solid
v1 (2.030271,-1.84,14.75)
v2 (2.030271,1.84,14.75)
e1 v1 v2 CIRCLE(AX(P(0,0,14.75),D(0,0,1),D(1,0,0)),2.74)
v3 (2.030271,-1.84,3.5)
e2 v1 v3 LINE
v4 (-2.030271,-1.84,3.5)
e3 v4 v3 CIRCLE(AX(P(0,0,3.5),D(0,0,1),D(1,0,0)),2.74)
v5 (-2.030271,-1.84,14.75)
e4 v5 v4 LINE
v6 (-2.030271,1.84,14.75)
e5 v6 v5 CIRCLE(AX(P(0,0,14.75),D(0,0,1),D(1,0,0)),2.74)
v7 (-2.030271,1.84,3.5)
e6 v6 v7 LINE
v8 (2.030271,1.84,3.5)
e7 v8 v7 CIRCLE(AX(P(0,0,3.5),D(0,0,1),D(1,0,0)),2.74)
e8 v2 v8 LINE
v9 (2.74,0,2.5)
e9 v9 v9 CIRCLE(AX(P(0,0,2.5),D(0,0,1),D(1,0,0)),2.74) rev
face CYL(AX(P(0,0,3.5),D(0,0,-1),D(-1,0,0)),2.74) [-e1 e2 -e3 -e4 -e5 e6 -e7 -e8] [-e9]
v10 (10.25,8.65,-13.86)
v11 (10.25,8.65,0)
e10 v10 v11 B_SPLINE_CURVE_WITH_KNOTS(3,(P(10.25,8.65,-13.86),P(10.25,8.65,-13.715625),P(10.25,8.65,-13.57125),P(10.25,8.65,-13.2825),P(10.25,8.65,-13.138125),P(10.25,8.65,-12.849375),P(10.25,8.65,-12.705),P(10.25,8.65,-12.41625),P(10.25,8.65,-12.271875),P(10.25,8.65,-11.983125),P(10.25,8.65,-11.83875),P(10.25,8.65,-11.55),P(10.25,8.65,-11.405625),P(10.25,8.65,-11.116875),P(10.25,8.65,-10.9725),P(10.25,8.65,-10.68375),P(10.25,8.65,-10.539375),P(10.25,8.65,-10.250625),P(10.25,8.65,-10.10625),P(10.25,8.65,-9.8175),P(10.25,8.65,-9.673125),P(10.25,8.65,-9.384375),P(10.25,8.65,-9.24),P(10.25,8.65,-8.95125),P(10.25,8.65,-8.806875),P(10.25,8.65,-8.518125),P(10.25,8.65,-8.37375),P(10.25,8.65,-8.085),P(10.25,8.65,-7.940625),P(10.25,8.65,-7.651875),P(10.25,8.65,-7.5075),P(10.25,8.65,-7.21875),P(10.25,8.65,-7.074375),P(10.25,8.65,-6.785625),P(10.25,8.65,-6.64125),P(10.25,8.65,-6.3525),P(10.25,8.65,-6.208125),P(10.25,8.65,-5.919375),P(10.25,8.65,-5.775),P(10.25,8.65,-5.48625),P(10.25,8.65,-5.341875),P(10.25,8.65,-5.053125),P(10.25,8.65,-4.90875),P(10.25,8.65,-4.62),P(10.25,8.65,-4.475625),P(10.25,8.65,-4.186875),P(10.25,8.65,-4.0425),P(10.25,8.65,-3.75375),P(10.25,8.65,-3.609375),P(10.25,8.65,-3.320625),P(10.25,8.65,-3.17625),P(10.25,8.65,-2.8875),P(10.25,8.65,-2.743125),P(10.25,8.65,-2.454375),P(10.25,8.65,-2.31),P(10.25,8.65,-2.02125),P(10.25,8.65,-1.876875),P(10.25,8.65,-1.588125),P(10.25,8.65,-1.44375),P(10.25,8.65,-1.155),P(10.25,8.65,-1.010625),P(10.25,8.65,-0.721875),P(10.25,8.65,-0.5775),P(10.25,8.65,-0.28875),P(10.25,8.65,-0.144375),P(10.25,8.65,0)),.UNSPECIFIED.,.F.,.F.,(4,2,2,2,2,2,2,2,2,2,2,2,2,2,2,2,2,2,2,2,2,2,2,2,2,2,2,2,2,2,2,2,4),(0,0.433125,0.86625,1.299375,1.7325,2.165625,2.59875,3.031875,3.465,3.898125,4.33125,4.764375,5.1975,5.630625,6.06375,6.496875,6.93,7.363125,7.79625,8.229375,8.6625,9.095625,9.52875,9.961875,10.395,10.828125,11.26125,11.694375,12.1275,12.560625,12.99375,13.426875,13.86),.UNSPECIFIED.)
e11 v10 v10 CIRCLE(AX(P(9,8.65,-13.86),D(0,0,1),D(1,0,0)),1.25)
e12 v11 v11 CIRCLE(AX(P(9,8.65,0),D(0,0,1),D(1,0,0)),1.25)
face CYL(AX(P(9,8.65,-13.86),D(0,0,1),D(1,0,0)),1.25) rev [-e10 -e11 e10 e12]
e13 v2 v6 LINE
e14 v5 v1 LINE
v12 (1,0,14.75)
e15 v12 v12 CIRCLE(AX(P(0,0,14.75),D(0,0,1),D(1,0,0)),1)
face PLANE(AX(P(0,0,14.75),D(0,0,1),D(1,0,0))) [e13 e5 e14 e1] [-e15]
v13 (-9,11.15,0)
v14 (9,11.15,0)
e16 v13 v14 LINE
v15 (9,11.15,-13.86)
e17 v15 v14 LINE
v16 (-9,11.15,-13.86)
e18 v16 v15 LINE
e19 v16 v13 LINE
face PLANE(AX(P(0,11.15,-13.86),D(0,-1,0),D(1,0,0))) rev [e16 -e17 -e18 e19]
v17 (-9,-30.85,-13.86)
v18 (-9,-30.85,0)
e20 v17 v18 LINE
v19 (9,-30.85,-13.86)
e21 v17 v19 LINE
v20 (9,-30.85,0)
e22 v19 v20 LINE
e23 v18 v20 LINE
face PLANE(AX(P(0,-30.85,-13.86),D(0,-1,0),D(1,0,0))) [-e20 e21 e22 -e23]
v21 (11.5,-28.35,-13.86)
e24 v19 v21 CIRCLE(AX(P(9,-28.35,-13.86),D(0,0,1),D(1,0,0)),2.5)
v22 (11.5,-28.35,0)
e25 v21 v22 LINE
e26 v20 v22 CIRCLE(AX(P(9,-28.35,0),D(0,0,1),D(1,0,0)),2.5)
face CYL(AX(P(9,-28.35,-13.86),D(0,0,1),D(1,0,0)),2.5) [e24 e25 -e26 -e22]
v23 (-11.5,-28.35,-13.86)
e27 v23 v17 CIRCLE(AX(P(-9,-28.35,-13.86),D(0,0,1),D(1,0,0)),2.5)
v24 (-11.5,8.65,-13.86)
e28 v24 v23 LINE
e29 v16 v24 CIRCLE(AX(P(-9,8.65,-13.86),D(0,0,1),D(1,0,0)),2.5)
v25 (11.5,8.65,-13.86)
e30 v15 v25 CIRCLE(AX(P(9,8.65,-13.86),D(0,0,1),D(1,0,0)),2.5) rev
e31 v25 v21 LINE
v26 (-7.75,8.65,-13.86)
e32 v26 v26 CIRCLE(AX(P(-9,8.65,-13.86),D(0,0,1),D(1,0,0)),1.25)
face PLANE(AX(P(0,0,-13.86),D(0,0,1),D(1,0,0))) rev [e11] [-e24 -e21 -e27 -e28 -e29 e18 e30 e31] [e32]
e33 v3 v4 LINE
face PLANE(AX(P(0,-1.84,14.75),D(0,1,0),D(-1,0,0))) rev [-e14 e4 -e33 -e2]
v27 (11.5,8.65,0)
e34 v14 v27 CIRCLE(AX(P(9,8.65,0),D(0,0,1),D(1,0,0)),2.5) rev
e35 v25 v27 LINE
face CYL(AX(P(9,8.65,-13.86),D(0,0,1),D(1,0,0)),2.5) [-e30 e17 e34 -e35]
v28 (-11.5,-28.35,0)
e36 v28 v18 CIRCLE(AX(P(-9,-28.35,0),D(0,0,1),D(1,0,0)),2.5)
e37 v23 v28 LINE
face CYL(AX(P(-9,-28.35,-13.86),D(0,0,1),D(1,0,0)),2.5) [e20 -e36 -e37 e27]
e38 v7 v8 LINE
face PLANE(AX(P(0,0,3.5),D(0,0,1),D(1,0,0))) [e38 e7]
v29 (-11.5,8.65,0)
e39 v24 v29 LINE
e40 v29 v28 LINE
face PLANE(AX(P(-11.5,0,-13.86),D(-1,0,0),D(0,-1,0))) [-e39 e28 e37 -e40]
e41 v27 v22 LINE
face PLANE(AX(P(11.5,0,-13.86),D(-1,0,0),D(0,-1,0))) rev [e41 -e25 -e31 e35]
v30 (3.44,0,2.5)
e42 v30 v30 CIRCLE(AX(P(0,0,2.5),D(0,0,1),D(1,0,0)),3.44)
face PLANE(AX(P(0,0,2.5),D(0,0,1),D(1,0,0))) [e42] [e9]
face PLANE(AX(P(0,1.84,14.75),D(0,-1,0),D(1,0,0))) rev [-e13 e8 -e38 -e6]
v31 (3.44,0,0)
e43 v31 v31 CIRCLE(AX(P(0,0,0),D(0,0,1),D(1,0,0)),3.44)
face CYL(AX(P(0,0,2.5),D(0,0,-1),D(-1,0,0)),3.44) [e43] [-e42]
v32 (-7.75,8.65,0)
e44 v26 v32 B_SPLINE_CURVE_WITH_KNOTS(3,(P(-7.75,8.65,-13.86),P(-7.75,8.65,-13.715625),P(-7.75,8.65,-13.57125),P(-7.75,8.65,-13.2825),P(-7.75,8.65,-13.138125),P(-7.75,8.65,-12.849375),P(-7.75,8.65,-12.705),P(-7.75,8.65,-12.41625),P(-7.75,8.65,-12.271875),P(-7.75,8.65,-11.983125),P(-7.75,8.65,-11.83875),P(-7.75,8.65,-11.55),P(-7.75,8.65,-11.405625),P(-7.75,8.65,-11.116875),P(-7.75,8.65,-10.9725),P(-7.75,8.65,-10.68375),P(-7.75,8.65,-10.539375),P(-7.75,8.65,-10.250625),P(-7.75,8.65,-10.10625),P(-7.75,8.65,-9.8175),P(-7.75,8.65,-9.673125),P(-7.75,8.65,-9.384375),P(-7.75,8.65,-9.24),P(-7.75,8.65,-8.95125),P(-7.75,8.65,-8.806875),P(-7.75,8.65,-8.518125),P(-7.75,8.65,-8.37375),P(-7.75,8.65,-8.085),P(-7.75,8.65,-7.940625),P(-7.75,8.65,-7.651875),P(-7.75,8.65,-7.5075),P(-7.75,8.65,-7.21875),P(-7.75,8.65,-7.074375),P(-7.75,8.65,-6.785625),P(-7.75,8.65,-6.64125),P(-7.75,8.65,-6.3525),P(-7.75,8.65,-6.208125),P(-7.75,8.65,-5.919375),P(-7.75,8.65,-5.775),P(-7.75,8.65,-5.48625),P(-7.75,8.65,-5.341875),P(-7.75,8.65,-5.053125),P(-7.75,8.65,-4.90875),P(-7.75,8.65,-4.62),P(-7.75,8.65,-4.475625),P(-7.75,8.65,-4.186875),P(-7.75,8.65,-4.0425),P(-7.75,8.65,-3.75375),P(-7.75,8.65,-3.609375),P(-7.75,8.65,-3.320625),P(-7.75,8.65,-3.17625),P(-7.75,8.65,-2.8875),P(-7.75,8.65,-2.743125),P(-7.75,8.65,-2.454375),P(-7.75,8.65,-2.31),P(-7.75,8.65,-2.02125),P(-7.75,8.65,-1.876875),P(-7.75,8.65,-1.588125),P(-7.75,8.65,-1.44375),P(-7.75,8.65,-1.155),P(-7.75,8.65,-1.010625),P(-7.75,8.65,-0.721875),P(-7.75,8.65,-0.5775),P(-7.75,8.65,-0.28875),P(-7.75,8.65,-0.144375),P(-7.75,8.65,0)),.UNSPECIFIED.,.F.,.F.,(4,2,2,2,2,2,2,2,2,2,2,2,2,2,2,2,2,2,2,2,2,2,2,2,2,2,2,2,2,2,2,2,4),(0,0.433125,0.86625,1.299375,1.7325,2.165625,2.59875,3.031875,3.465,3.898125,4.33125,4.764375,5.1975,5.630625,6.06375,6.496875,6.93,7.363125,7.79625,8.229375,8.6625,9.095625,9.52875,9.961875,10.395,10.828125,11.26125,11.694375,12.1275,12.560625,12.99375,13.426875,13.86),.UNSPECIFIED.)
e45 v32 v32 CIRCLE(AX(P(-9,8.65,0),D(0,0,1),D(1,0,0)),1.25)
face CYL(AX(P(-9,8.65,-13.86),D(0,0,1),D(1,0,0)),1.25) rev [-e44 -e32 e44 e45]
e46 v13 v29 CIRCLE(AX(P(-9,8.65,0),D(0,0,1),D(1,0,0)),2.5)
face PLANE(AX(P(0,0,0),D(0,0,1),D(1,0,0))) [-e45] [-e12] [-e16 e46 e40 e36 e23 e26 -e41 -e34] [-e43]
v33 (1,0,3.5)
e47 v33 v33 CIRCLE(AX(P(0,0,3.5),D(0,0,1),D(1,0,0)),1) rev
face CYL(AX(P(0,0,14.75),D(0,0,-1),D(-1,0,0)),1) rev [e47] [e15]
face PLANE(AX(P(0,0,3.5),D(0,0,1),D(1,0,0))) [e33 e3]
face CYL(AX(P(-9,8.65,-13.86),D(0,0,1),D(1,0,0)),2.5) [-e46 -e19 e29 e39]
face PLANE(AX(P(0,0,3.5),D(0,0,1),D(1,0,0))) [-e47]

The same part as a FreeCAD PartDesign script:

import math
import FreeCAD as App
import Part
import Sketcher

doc = App.newDocument("Part")
body = doc.addObject("PartDesign::Body", "Body")

# Sketch on XY plane
sketch1 = body.newObject("Sketcher::SketchObject", "Sketch")
sketch1.AttachmentSupport = (doc.getObject("XY_Plane"), [""])
sketch1.MapMode = "FlatFace"
sketch1.addGeometry(Part.LineSegment(App.Vector(9, 11.2, 0), App.Vector(-9, 11.2, 0)), False)
sketch1.addGeometry(Part.ArcOfCircle(Part.Circle(App.Vector(-9, 8.7, 0), App.Vector(0, 0, 1), 2.5), math.radians(90), math.radians(180)), False)
sketch1.addGeometry(Part.LineSegment(App.Vector(-11.5, 8.7, 0), App.Vector(-11.5, -28.4, 0)), False)
sketch1.addGeometry(Part.ArcOfCircle(Part.Circle(App.Vector(-9, -28.4, 0), App.Vector(0, 0, 1), 2.5), math.radians(180), math.radians(270)), False)
sketch1.addGeometry(Part.LineSegment(App.Vector(-9, -30.9, 0), App.Vector(9, -30.9, 0)), False)
sketch1.addGeometry(Part.ArcOfCircle(Part.Circle(App.Vector(9, -28.4, 0), App.Vector(0, 0, 1), 2.5), math.radians(-90), math.radians(0)), False)
sketch1.addGeometry(Part.LineSegment(App.Vector(11.5, -28.4, 0), App.Vector(11.5, 8.7, 0)), False)
sketch1.addGeometry(Part.ArcOfCircle(Part.Circle(App.Vector(9, 8.7, 0), App.Vector(0, 0, 1), 2.5), math.radians(0), math.radians(90)), False)
sketch1.addGeometry(Part.Circle(App.Vector(9, 8.7, 0), App.Vector(0, 0, 1), 1.2), False)
sketch1.addGeometry(Part.Circle(App.Vector(-9, 8.7, 0), App.Vector(0, 0, 1), 1.2), False)
sketch1.addConstraint(Sketcher.Constraint("Tangent", 0, 2, 1, 1))
sketch1.addConstraint(Sketcher.Constraint("Tangent", 1, 2, 2, 1))
sketch1.addConstraint(Sketcher.Constraint("Tangent", 2, 2, 3, 1))
sketch1.addConstraint(Sketcher.Constraint("Tangent", 3, 2, 4, 1))
sketch1.addConstraint(Sketcher.Constraint("Tangent", 4, 2, 5, 1))
sketch1.addConstraint(Sketcher.Constraint("Tangent", 5, 2, 6, 1))
sketch1.addConstraint(Sketcher.Constraint("Tangent", 6, 2, 7, 1))
sketch1.addConstraint(Sketcher.Constraint("Tangent", 7, 2, 0, 1))
sketch1.addConstraint(Sketcher.Constraint("Horizontal", 0))
sketch1.addConstraint(Sketcher.Constraint("Vertical", 2))
sketch1.addConstraint(Sketcher.Constraint("Horizontal", 4))
sketch1.addConstraint(Sketcher.Constraint("Vertical", 6))
sketch1.addConstraint(Sketcher.Constraint("Coincident", 8, 3, 7, 3))
sketch1.addConstraint(Sketcher.Constraint("Coincident", 9, 3, 1, 3))
sketch1.addConstraint(Sketcher.Constraint("Equal", 1, 3))
sketch1.addConstraint(Sketcher.Constraint("Equal", 3, 5))
sketch1.addConstraint(Sketcher.Constraint("Equal", 5, 7))
sketch1.addConstraint(Sketcher.Constraint("Equal", 8, 9))
sketch1.addConstraint(Sketcher.Constraint("Diameter", 8, 2.5))
sketch1.addConstraint(Sketcher.Constraint("Radius", 1, 2.5))
sketch1.addConstraint(Sketcher.Constraint("DistanceX", 0, 2, 0, 1, 18.0))
sketch1.addConstraint(Sketcher.Constraint("DistanceY", 2, 2, 2, 1, 37.0))
sketch1.addConstraint(Sketcher.Constraint("DistanceX", 1, 3, -1, 1, 9.0))
sketch1.addConstraint(Sketcher.Constraint("DistanceY", -1, 1, 1, 3, 8.65))
pad1 = body.newObject("PartDesign::Pad", "Pad")
pad1.Profile = sketch1
pad1.Length = 13.86
pad1.Reversed = True

# Sketch on XY plane
sketch2 = body.newObject("Sketcher::SketchObject", "Sketch001")
sketch2.AttachmentSupport = (doc.getObject("XY_Plane"), [""])
sketch2.MapMode = "FlatFace"
sketch2.addGeometry(Part.Circle(App.Vector(0, 0, 0), App.Vector(0, 0, 1), 3.4), False)
sketch2.addConstraint(Sketcher.Constraint("Coincident", 0, 3, -1, 1))
sketch2.addConstraint(Sketcher.Constraint("Diameter", 0, 6.88))
pad2 = body.newObject("PartDesign::Pad", "Pad001")
pad2.Profile = sketch2
pad2.Length = 2.5

# Sketch on XY plane
sketch3 = body.newObject("Sketcher::SketchObject", "Sketch002")
sketch3.AttachmentSupport = (doc.getObject("XY_Plane"), [""])
sketch3.MapMode = "FlatFace"
sketch3.addGeometry(Part.Circle(App.Vector(0, 0, 0), App.Vector(0, 0, 1), 2.7), False)
sketch3.addConstraint(Sketcher.Constraint("Coincident", 0, 3, -1, 1))
sketch3.addConstraint(Sketcher.Constraint("Diameter", 0, 5.48))
pad3 = body.newObject("PartDesign::Pad", "Pad002")
pad3.Profile = sketch3
pad3.Length = 3.5

# Sketch on XY plane
sketch4 = body.newObject("Sketcher::SketchObject", "Sketch003")
sketch4.AttachmentSupport = (doc.getObject("XY_Plane"), [""])
sketch4.MapMode = "FlatFace"
sketch4.addGeometry(Part.ArcOfCircle(Part.Circle(App.Vector(0, 0, 0), App.Vector(0, 0, 1), 2.7), math.radians(0), math.radians(42)), False)
sketch4.addGeometry(Part.LineSegment(App.Vector(2, 1.8, 0), App.Vector(-2, 1.8, 0)), False)
sketch4.addGeometry(Part.ArcOfCircle(Part.Circle(App.Vector(0, 0, 0), App.Vector(0, 0, 1), 2.7), math.radians(138), math.radians(222)), False)
sketch4.addGeometry(Part.LineSegment(App.Vector(-2, -1.8, 0), App.Vector(2, -1.8, 0)), False)
sketch4.addGeometry(Part.ArcOfCircle(Part.Circle(App.Vector(0, 0, 0), App.Vector(0, 0, 1), 2.7), math.radians(-42), math.radians(0)), False)
sketch4.addGeometry(Part.Circle(App.Vector(0, 0, 0), App.Vector(0, 0, 1), 1), False)
sketch4.addConstraint(Sketcher.Constraint("Coincident", 0, 2, 1, 1))
sketch4.addConstraint(Sketcher.Constraint("Coincident", 1, 2, 2, 1))
sketch4.addConstraint(Sketcher.Constraint("Coincident", 2, 2, 3, 1))
sketch4.addConstraint(Sketcher.Constraint("Coincident", 3, 2, 4, 1))
sketch4.addConstraint(Sketcher.Constraint("Tangent", 4, 2, 0, 1))
sketch4.addConstraint(Sketcher.Constraint("Horizontal", 1))
sketch4.addConstraint(Sketcher.Constraint("Horizontal", 3))
sketch4.addConstraint(Sketcher.Constraint("Coincident", 0, 3, -1, 1))
sketch4.addConstraint(Sketcher.Constraint("Coincident", 2, 3, -1, 1))
sketch4.addConstraint(Sketcher.Constraint("Coincident", 5, 3, -1, 1))
sketch4.addConstraint(Sketcher.Constraint("Equal", 0, 2))
sketch4.addConstraint(Sketcher.Constraint("Equal", 2, 4))
sketch4.addConstraint(Sketcher.Constraint("PointOnObject", 4, 2, -1))
sketch4.addConstraint(Sketcher.Constraint("Vertical", 1, 2, 2, 2))
sketch4.addConstraint(Sketcher.Constraint("Diameter", 5, 2.0))
sketch4.addConstraint(Sketcher.Constraint("Radius", 0, 2.74))
sketch4.addConstraint(Sketcher.Constraint("DistanceY", -1, 1, 0, 2, 1.84))
pad4 = body.newObject("PartDesign::Pad", "Pad003")
pad4.Profile = sketch4
pad4.Length = 14.75

doc.recompute()
